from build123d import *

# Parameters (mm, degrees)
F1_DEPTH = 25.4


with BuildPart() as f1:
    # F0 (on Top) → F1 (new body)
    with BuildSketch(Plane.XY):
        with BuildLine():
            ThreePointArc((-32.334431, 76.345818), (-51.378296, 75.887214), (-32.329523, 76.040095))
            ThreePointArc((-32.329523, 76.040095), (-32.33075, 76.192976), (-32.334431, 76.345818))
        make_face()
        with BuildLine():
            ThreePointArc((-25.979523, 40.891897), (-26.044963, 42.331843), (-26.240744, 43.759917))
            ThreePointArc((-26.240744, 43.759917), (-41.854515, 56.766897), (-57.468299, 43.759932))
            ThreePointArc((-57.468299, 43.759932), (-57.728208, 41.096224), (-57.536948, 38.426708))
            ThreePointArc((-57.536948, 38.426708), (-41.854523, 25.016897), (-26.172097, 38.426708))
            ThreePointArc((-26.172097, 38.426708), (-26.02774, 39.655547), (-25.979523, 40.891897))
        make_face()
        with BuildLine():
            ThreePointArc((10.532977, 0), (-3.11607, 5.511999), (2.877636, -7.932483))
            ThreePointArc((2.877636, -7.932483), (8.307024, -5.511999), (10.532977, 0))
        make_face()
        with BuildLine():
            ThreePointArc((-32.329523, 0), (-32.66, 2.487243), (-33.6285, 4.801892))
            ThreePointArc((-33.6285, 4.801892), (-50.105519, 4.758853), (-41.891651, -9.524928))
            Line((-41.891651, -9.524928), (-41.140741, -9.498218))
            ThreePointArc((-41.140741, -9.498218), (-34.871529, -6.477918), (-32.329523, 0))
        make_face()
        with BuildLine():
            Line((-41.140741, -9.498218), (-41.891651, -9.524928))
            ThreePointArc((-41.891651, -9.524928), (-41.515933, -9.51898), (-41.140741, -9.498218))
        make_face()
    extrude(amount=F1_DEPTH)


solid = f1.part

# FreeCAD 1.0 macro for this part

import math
import FreeCAD as App
import Part
import Sketcher

V = App.Vector
Q = App.Units.Quantity

doc = App.newDocument("Part")
body = doc.addObject("PartDesign::Body", "Body")
body.AllowCompound = True

# Sketch on XY plane
sketch1 = body.newObject("Sketcher::SketchObject", "Sketch")
sketch1.AttachmentSupport = (doc.getObject("XY_Plane"), [""])
sketch1.MapMode = "FlatFace"
sketch1.addGeometry(Part.ArcOfCircle(Part.Circle(V(-41.854523, 76.040084, 0), V(0, 0, 1), 9.525), math.radians(1.8394), math.radians(360.000066)), False)
sketch1.addGeometry(Part.ArcOfCircle(Part.Circle(V(-41.853246, 76.040104, 0), V(0, 0, 1), 9.523723), math.radians(-0.000057), math.radians(1.839523)), False)
sketch1.addGeometry(Part.ArcOfCircle(Part.Circle(V(-41.854503, 40.8919, 0), V(0, 0, 1), 15.87498), math.radians(-0.000012), math.radians(10.408363)), False)
sketch1.addGeometry(Part.ArcOfCircle(Part.Circle(V(-41.854523, 40.891897, 0), V(0, 0, 1), 15.875), math.radians(10.408362), math.radians(169.591583)), False)
sketch1.addGeometry(Part.ArcOfCircle(Part.Circle(V(-41.854538, 40.891899, 0), V(0, 0, 1), 15.874985), math.radians(169.59158), math.radians(188.933485)), False)
sketch1.addGeometry(Part.ArcOfCircle(Part.Circle(V(-41.854523, 40.891897, 0), V(0, 0, 1), 15.875), math.radians(-171.066529), math.radians(-8.933471)), False)
sketch1.addGeometry(Part.ArcOfCircle(Part.Circle(V(-41.854648, 40.891903, 0), V(0, 0, 1), 15.875125), math.radians(-8.933423), math.radians(-0.000023)), False)
sketch1.addGeometry(Part.ArcOfCircle(Part.Circle(V(2.595477, 0, 0), V(0, 0, 1), 7.9375), math.radians(-0.000001), math.radians(272.037155)), False)
sketch1.addGeometry(Part.ArcOfCircle(Part.Circle(V(2.595477, 0, 0), V(0, 0, 1), 7.9375), math.radians(-87.962844), math.radians(-0.000003)), False)
sketch1.addGeometry(Part.ArcOfCircle(Part.Circle(V(-41.854511, 0.000003, 0), V(0, 0, 1), 9.524988), math.radians(-0.000016), math.radians(30.274013)), False)
sketch1.addGeometry(Part.ArcOfCircle(Part.Circle(V(-41.854523, 0, 0), V(0, 0, 1), 9.525), math.radians(30.273995), math.radians(269.776662)), False)
sketch1.addGeometry(Part.ArcOfCircle(Part.Circle(V(-41.854542, 0.000504, 0), V(0, 0, 1), 9.525504), math.radians(-90.223209), math.radians(-85.702467)), False)
sketch1.addGeometry(Part.ArcOfCircle(Part.Circle(V(-41.854523, 0, 0), V(0, 0, 1), 9.525), math.radians(-85.702354), math.radians(0)), False)
sketch1.addConstraint(Sketcher.Constraint("Coincident", 0, 1, 1, 2))
sketch1.addConstraint(Sketcher.Constraint("Coincident", 1, 1, 0, 2))
sketch1.addConstraint(Sketcher.Constraint("Coincident", 2, 2, 3, 1))
sketch1.addConstraint(Sketcher.Constraint("Coincident", 3, 2, 4, 1))
sketch1.addConstraint(Sketcher.Constraint("Coincident", 4, 2, 5, 1))
sketch1.addConstraint(Sketcher.Constraint("Coincident", 5, 2, 6, 1))
sketch1.addConstraint(Sketcher.Constraint("Coincident", 6, 2, 2, 1))
sketch1.addConstraint(Sketcher.Constraint("Coincident", 7, 1, 8, 2))
sketch1.addConstraint(Sketcher.Constraint("Coincident", 8, 1, 7, 2))
sketch1.addConstraint(Sketcher.Constraint("Coincident", 9, 2, 10, 1))
sketch1.addConstraint(Sketcher.Constraint("Coincident", 10, 2, 11, 1))
sketch1.addConstraint(Sketcher.Constraint("Coincident", 11, 2, 12, 1))
sketch1.addConstraint(Sketcher.Constraint("Coincident", 12, 2, 9, 1))
sketch1.addConstraint(Sketcher.Constraint("Coincident", 5, 3, 3, 3))
sketch1.addConstraint(Sketcher.Constraint("Coincident", 12, 3, 10, 3))
sketch1.addConstraint(Sketcher.Constraint("PointOnObject", 7, 3, -1))
sketch1.addConstraint(Sketcher.Constraint("PointOnObject", 8, 3, -1))
sketch1.addConstraint(Sketcher.Constraint("PointOnObject", 10, 3, -1))
sketch1.addConstraint(Sketcher.Constraint("PointOnObject", 7, 1, -1))
sketch1.addConstraint(Sketcher.Constraint("PointOnObject", 12, 2, -1))
sketch1.addConstraint(Sketcher.Constraint("Radius", 0, Q("0.375 in")))
sketch1.addConstraint(Sketcher.Constraint("Radius", 3, Q("0.625 in")))
sketch1.addConstraint(Sketcher.Constraint("Radius", 5, Q("0.625 in")))
sketch1.addConstraint(Sketcher.Constraint("Radius", 7, Q("0.3125 in")))
sketch1.addConstraint(Sketcher.Constraint("Radius", 10, Q("0.375 in")))
sketch1.addConstraint(Sketcher.Constraint("Radius", 12, Q("0.375 in")))
sketch1.addConstraint(Sketcher.Constraint("DistanceX", 5, 3, 7, 3, Q("1.75 in")))
sketch1.addConstraint(Sketcher.Constraint("Radius", 2, Q("15.87498 mm")))
sketch1.addConstraint(Sketcher.Constraint("Radius", 9, Q("9.524988 mm")))
sketch1.addConstraint(Sketcher.Constraint("DistanceX", 5, 3, 1, 1, Q("0.375 in")))
sketch1.addConstraint(Sketcher.Constraint("DistanceX", 5, 3, 6, 2, Q("0.625 in")))
sketch1.addConstraint(Sketcher.Constraint("DistanceX", 10, 3, 7, 1, Q("2.0625 in")))
sketch1.addConstraint(Sketcher.Constraint("DistanceX", 2, 2, -1, 1, Q("1.0331002 in")))
sketch1.addConstraint(Sketcher.Constraint("Radius", 1, Q("9.523723 mm")))
sketch1.addConstraint(Sketcher.Constraint("Radius", 4, Q("15.874985 mm")))
sketch1.addConstraint(Sketcher.Constraint("Radius", 6, Q("15.875125 mm")))
sketch1.addConstraint(Sketcher.Constraint("Radius", 11, Q("9.525504 mm")))
sketch1.addConstraint(Sketcher.Constraint("DistanceY", -1, 1, 2, 3, Q("40.8919 mm")))
sketch1.addConstraint(Sketcher.Constraint("DistanceX", 3, 2, -1, 1, Q("57.468299 mm")))
sketch1.addConstraint(Sketcher.Constraint("DistanceX", 9, 2, -1, 1, Q("33.6285 mm")))
sketch1.addConstraint(Sketcher.Constraint("DistanceX", 4, 2, 6, 3, Q("15.6823 mm")))
sketch1.addConstraint(Sketcher.Constraint("DistanceX", 11, 3, 11, 2, Q("0.713801 mm")))
sketch1.addConstraint(Sketcher.Constraint("DistanceX", 4, 3, -1, 1, Q("41.854538 mm")))
sketch1.addConstraint(Sketcher.Constraint("DistanceX", 0, 1, -1, 1, Q("32.334431 mm")))
sketch1.addConstraint(Sketcher.Constraint("DistanceY", -1, 1, 0, 1, Q("76.345818 mm")))
sketch1.addConstraint(Sketcher.Constraint("DistanceY", -1, 1, 5, 2, Q("38.426708 mm")))
sketch1.addConstraint(Sketcher.Constraint("DistanceX", 10, 2, -1, 1, Q("41.891651 mm")))
sketch1.addConstraint(Sketcher.Constraint("DistanceY", 5, 2, 6, 2, Q("2.465189 mm")))
sketch1.addConstraint(Sketcher.Constraint("DistanceX", 7, 3, 8, 1, Q("0.282159 mm")))
sketch1.addConstraint(Sketcher.Constraint("DistanceY", -1, 1, 1, 1, Q("76.040095 mm")))
pad1 = body.newObject("PartDesign::Pad", "Pad")
pad1.Profile = sketch1
pad1.Length = Q("1 in")

doc.recompute()
